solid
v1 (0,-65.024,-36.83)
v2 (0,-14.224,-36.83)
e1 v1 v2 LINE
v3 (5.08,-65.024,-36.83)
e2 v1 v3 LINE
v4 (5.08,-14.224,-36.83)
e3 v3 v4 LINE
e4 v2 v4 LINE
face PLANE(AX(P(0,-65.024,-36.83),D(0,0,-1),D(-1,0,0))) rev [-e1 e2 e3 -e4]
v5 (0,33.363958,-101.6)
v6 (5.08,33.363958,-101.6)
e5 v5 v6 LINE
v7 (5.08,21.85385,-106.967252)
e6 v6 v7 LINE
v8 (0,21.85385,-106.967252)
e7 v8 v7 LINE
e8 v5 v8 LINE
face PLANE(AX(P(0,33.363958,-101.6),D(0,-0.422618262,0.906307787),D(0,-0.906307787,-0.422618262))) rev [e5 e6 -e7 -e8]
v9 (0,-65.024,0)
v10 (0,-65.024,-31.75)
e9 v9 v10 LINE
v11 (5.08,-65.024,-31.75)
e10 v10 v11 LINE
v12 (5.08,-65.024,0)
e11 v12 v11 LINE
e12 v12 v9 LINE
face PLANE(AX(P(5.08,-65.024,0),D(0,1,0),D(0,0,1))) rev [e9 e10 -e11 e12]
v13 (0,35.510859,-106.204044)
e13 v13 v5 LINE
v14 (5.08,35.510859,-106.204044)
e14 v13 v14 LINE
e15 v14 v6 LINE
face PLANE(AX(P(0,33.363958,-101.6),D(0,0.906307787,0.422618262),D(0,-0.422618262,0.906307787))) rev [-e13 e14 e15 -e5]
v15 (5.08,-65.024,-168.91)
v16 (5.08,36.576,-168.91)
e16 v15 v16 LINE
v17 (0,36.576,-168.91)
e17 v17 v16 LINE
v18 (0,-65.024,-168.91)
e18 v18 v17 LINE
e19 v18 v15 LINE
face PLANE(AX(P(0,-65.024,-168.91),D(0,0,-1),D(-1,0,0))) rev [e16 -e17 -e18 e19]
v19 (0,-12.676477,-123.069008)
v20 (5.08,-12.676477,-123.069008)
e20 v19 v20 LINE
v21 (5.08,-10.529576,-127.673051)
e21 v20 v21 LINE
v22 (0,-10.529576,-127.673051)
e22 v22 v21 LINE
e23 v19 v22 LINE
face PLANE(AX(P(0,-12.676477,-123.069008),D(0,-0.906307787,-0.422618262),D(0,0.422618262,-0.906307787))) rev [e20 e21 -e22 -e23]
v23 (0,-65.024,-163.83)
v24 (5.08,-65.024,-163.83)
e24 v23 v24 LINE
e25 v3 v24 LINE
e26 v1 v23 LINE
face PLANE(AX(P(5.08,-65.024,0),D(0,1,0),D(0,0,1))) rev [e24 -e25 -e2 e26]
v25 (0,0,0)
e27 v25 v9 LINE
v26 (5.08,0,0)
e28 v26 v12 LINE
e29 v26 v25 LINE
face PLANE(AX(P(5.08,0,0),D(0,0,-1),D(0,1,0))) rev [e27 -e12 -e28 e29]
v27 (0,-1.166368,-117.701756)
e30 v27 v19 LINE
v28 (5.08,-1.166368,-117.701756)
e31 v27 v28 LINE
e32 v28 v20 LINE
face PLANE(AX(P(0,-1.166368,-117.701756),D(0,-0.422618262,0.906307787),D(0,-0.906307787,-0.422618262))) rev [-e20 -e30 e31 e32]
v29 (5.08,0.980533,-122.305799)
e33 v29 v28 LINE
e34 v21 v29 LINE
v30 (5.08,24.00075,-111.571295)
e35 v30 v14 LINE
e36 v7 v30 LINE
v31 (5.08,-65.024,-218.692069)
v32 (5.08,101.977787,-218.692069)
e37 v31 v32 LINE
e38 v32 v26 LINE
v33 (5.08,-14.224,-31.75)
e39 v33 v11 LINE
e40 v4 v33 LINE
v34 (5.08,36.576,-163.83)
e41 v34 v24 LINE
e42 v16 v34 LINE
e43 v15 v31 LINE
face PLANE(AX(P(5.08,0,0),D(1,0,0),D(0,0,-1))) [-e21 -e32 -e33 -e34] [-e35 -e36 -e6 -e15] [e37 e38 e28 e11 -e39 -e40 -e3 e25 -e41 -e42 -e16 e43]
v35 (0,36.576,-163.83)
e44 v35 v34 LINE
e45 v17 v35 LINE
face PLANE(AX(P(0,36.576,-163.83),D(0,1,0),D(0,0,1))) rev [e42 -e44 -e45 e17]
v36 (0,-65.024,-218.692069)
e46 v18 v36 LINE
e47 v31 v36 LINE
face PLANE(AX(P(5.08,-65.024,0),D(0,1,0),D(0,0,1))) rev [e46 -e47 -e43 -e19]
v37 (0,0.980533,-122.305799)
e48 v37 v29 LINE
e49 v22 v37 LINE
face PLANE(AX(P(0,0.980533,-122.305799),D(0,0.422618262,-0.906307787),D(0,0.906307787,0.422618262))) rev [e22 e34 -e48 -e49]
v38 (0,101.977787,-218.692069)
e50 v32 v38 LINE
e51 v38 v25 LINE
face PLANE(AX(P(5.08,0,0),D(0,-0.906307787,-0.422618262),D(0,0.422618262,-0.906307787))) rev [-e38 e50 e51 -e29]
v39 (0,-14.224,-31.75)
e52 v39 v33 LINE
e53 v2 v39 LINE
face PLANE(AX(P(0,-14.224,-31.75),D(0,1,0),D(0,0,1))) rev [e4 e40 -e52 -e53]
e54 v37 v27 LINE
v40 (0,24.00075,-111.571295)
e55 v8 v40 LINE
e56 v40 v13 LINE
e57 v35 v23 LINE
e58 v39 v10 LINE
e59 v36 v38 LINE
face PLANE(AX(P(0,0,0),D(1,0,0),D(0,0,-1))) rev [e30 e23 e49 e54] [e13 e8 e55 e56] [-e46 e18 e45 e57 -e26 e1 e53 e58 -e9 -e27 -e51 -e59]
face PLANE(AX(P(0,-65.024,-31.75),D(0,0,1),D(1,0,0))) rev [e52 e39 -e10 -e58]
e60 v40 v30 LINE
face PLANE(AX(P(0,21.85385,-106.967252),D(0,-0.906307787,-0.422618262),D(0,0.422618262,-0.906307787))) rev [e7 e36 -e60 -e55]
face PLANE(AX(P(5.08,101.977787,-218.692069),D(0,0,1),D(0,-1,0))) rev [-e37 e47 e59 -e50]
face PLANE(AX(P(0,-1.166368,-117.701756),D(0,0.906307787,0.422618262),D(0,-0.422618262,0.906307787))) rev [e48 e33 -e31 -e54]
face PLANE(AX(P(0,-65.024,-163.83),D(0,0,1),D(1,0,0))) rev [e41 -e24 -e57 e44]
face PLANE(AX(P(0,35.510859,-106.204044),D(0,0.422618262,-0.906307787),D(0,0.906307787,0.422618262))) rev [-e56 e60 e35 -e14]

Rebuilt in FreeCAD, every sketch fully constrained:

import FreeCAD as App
import Part
import Sketcher
from FreeCAD import Vector
Q = App.Units.Quantity

doc = App.newDocument("Part")
params = doc.addObject("Spreadsheet::Sheet", "Params")
for row, (alias, value) in enumerate([
    ("sketch1_length", "9.5 in"),
    ("sketch1_width", "2.56 in"),
    ("pad1_length", "0.2 in"),
    ("sketch2_length", "0.2 in"),
    ("sketch2_length2", "0.5 in"),
    ("linearpattern_pitch", "1.5 in"),
    ("sketch3_width", "2 in"),
    ("sketch3_width2", "4 in"),
    ("sketch3_height", "0.2 in"),
], start=1):
    params.set(f"A{row}", alias)
    params.set(f"B{row}", "=" + value)
    params.setAlias(f"B{row}", alias)

body = doc.addObject("PartDesign::Body", "Body")

# Sketch on YZ plane
sketch1 = body.newObject("Sketcher::SketchObject", "Sketch")
sketch1.AttachmentSupport = (doc.getObject("YZ_Plane"), [""])
sketch1.MapMode = "FlatFace"
sketch1.addGeometry([
    Part.LineSegment(Vector(102, -219, 0), Vector(0, 0, 0)),
    Part.LineSegment(Vector(0, 0, 0), Vector(-65, 0, 0)),
    Part.LineSegment(Vector(-65, 0, 0), Vector(-65, -219, 0)),
    Part.LineSegment(Vector(-65, -219, 0), Vector(102, -219, 0)),
], False)
sketch1.addConstraint([
    Sketcher.Constraint("Coincident", 0, 2, 1, 1),
    Sketcher.Constraint("Coincident", 1, 2, 2, 1),
    Sketcher.Constraint("Coincident", 2, 2, 3, 1),
    Sketcher.Constraint("Coincident", 3, 2, 0, 1),
    Sketcher.Constraint("Horizontal", 1),
    Sketcher.Constraint("Vertical", 2),
    Sketcher.Constraint("Horizontal", 3),
    Sketcher.Constraint("Coincident", 0, 2, -1, 1),
    Sketcher.Constraint("Angle", 0, Q("115 deg")),
    Sketcher.Constraint("Distance", 0, Q("9.5 in")),
    Sketcher.Constraint("DistanceX", 1, 2, 1, 1, Q("2.56 in")),
])
sketch1.setExpression("Constraints[9]", "Params.sketch1_length")
sketch1.setExpression("Constraints[10]", "Params.sketch1_width")
pad1 = body.newObject("PartDesign::Pad", "Pad")
pad1.Profile = sketch1
pad1.setExpression("Length", "Params.pad1_length")

# Sketch on YZ plane
sketch2 = body.newObject("Sketcher::SketchObject", "Sketch001")
sketch2.AttachmentSupport = (doc.getObject("YZ_Plane"), [""])
sketch2.MapMode = "FlatFace"
sketch2.AttachmentOffset = App.Placement(Vector(0, 0, 0.2 * 25.4), App.Rotation())
sketch2.addGeometry([
    Part.LineSegment(Vector(36, -106, 0), Vector(33, -102, 0)),
    Part.LineSegment(Vector(33, -102, 0), Vector(22, -107, 0)),
    Part.LineSegment(Vector(22, -107, 0), Vector(24, -112, 0)),
    Part.LineSegment(Vector(24, -112, 0), Vector(36, -106, 0)),
], False)
sketch2.addConstraint([
    Sketcher.Constraint("Coincident", 0, 2, 1, 1),
    Sketcher.Constraint("Coincident", 1, 2, 2, 1),
    Sketcher.Constraint("Coincident", 2, 2, 3, 1),
    Sketcher.Constraint("Coincident", 3, 2, 0, 1),
    Sketcher.Constraint("Perpendicular", 0, 1),
    Sketcher.Constraint("Perpendicular", 1, 2),
    Sketcher.Constraint("Perpendicular", 2, 3),
    Sketcher.Constraint("DistanceY", 0, 2, -1, 1, Q("4 in")),
    Sketcher.Constraint("Angle", 0, Q("115 deg")),
    Sketcher.Constraint("Distance", 0, Q("0.2 in")),
    Sketcher.Constraint("Distance", 1, Q("0.5 in")),
    Sketcher.Constraint("DistanceX", -1, 1, 0, 2, Q("33.363958 mm")),
])
sketch2.setExpression("Constraints[9]", "Params.sketch2_length")
sketch2.setExpression("Constraints[10]", "Params.sketch2_length2")
pocket1 = body.newObject("PartDesign::Pocket", "Pocket")
pocket1.Profile = sketch2
pocket1.Type = "ThroughAll"
doc.recompute()

datumline = body.newObject("PartDesign::Line", "DatumLine")
datumline.Placement = App.Placement(Vector(0, 0, 0), App.Rotation(Vector(0, 0, 1), Vector(0, -0.906307787, -0.422618262)))
linearpattern = body.newObject("PartDesign::LinearPattern", "LinearPattern")
linearpattern.Originals = [pocket1]
linearpattern.Direction = (datumline, [""])
linearpattern.Mode = "offset"
linearpattern.setExpression("Offset", "Params.linearpattern_pitch")
linearpattern.Occurrences = 2
body.Tip = linearpattern

# Sketch on YZ plane
sketch3 = body.newObject("Sketcher::SketchObject", "Sketch002")
sketch3.AttachmentSupport = (doc.getObject("YZ_Plane"), [""])
sketch3.MapMode = "FlatFace"
sketch3.AttachmentOffset = App.Placement(Vector(0, 0, 0.2 * 25.4), App.Rotation())
sketch3.addGeometry([
    Part.LineSegment(Vector(-14, -32, 0), Vector(-65, -32, 0)),  # 0
    Part.LineSegment(Vector(-65, -32, 0), Vector(-65, -37, 0)),  # 1
    Part.LineSegment(Vector(-65, -37, 0), Vector(-14, -37, 0)),  # 2
    Part.LineSegment(Vector(-14, -37, 0), Vector(-14, -32, 0)),  # 3
    Part.LineSegment(Vector(37, -164, 0), Vector(-65, -164, 0)),  # 4
    Part.LineSegment(Vector(-65, -164, 0), Vector(-65, -169, 0)),  # 5
    Part.LineSegment(Vector(-65, -169, 0), Vector(37, -169, 0)),  # 6
    Part.LineSegment(Vector(37, -169, 0), Vector(37, -164, 0)),  # 7
], False)
sketch3.addConstraint([
    Sketcher.Constraint("Coincident", 0, 2, 1, 1),
    Sketcher.Constraint("Coincident", 1, 2, 2, 1),
    Sketcher.Constraint("Coincident", 2, 2, 3, 1),
    Sketcher.Constraint("Coincident", 3, 2, 0, 1),
    Sketcher.Constraint("Coincident", 4, 2, 5, 1),
    Sketcher.Constraint("Coincident", 5, 2, 6, 1),
    Sketcher.Constraint("Coincident", 6, 2, 7, 1),
    Sketcher.Constraint("Coincident", 7, 2, 4, 1),
    Sketcher.Constraint("Horizontal", 0),
    Sketcher.Constraint("Vertical", 1),
    Sketcher.Constraint("Horizontal", 2),
    Sketcher.Constraint("Vertical", 3),
    Sketcher.Constraint("Horizontal", 4),
    Sketcher.Constraint("Vertical", 5),
    Sketcher.Constraint("Horizontal", 6),
    Sketcher.Constraint("Vertical", 7),
    Sketcher.Constraint("Vertical", 1, 2, 4, 2),
    Sketcher.Constraint("Equal", 3, 5),
    Sketcher.Constraint("DistanceX", 0, 2, 0, 1, Q("2 in")),
    Sketcher.Constraint("DistanceX", 4, 2, 4, 1, Q("4 in")),
    Sketcher.Constraint("DistanceY", 1, 2, 1, 1, Q("0.2 in")),
    Sketcher.Constraint("DistanceY", 4, 2, 1, 2, Q("5 in")),
    Sketcher.Constraint("DistanceX", 0, 2, -1, 1, Q("2.56 in")),
    Sketcher.Constraint("DistanceY", 0, 2, -1, 1, Q("1.25 in")),
])
sketch3.setExpression("Constraints[18]", "Params.sketch3_width")
sketch3.setExpression("Constraints[19]", "Params.sketch3_width2")
sketch3.setExpression("Constraints[20]", "Params.sketch3_height")
pocket2 = body.newObject("PartDesign::Pocket", "Pocket001")
pocket2.Profile = sketch3
pocket2.Type = "ThroughAll"

doc.recompute()
